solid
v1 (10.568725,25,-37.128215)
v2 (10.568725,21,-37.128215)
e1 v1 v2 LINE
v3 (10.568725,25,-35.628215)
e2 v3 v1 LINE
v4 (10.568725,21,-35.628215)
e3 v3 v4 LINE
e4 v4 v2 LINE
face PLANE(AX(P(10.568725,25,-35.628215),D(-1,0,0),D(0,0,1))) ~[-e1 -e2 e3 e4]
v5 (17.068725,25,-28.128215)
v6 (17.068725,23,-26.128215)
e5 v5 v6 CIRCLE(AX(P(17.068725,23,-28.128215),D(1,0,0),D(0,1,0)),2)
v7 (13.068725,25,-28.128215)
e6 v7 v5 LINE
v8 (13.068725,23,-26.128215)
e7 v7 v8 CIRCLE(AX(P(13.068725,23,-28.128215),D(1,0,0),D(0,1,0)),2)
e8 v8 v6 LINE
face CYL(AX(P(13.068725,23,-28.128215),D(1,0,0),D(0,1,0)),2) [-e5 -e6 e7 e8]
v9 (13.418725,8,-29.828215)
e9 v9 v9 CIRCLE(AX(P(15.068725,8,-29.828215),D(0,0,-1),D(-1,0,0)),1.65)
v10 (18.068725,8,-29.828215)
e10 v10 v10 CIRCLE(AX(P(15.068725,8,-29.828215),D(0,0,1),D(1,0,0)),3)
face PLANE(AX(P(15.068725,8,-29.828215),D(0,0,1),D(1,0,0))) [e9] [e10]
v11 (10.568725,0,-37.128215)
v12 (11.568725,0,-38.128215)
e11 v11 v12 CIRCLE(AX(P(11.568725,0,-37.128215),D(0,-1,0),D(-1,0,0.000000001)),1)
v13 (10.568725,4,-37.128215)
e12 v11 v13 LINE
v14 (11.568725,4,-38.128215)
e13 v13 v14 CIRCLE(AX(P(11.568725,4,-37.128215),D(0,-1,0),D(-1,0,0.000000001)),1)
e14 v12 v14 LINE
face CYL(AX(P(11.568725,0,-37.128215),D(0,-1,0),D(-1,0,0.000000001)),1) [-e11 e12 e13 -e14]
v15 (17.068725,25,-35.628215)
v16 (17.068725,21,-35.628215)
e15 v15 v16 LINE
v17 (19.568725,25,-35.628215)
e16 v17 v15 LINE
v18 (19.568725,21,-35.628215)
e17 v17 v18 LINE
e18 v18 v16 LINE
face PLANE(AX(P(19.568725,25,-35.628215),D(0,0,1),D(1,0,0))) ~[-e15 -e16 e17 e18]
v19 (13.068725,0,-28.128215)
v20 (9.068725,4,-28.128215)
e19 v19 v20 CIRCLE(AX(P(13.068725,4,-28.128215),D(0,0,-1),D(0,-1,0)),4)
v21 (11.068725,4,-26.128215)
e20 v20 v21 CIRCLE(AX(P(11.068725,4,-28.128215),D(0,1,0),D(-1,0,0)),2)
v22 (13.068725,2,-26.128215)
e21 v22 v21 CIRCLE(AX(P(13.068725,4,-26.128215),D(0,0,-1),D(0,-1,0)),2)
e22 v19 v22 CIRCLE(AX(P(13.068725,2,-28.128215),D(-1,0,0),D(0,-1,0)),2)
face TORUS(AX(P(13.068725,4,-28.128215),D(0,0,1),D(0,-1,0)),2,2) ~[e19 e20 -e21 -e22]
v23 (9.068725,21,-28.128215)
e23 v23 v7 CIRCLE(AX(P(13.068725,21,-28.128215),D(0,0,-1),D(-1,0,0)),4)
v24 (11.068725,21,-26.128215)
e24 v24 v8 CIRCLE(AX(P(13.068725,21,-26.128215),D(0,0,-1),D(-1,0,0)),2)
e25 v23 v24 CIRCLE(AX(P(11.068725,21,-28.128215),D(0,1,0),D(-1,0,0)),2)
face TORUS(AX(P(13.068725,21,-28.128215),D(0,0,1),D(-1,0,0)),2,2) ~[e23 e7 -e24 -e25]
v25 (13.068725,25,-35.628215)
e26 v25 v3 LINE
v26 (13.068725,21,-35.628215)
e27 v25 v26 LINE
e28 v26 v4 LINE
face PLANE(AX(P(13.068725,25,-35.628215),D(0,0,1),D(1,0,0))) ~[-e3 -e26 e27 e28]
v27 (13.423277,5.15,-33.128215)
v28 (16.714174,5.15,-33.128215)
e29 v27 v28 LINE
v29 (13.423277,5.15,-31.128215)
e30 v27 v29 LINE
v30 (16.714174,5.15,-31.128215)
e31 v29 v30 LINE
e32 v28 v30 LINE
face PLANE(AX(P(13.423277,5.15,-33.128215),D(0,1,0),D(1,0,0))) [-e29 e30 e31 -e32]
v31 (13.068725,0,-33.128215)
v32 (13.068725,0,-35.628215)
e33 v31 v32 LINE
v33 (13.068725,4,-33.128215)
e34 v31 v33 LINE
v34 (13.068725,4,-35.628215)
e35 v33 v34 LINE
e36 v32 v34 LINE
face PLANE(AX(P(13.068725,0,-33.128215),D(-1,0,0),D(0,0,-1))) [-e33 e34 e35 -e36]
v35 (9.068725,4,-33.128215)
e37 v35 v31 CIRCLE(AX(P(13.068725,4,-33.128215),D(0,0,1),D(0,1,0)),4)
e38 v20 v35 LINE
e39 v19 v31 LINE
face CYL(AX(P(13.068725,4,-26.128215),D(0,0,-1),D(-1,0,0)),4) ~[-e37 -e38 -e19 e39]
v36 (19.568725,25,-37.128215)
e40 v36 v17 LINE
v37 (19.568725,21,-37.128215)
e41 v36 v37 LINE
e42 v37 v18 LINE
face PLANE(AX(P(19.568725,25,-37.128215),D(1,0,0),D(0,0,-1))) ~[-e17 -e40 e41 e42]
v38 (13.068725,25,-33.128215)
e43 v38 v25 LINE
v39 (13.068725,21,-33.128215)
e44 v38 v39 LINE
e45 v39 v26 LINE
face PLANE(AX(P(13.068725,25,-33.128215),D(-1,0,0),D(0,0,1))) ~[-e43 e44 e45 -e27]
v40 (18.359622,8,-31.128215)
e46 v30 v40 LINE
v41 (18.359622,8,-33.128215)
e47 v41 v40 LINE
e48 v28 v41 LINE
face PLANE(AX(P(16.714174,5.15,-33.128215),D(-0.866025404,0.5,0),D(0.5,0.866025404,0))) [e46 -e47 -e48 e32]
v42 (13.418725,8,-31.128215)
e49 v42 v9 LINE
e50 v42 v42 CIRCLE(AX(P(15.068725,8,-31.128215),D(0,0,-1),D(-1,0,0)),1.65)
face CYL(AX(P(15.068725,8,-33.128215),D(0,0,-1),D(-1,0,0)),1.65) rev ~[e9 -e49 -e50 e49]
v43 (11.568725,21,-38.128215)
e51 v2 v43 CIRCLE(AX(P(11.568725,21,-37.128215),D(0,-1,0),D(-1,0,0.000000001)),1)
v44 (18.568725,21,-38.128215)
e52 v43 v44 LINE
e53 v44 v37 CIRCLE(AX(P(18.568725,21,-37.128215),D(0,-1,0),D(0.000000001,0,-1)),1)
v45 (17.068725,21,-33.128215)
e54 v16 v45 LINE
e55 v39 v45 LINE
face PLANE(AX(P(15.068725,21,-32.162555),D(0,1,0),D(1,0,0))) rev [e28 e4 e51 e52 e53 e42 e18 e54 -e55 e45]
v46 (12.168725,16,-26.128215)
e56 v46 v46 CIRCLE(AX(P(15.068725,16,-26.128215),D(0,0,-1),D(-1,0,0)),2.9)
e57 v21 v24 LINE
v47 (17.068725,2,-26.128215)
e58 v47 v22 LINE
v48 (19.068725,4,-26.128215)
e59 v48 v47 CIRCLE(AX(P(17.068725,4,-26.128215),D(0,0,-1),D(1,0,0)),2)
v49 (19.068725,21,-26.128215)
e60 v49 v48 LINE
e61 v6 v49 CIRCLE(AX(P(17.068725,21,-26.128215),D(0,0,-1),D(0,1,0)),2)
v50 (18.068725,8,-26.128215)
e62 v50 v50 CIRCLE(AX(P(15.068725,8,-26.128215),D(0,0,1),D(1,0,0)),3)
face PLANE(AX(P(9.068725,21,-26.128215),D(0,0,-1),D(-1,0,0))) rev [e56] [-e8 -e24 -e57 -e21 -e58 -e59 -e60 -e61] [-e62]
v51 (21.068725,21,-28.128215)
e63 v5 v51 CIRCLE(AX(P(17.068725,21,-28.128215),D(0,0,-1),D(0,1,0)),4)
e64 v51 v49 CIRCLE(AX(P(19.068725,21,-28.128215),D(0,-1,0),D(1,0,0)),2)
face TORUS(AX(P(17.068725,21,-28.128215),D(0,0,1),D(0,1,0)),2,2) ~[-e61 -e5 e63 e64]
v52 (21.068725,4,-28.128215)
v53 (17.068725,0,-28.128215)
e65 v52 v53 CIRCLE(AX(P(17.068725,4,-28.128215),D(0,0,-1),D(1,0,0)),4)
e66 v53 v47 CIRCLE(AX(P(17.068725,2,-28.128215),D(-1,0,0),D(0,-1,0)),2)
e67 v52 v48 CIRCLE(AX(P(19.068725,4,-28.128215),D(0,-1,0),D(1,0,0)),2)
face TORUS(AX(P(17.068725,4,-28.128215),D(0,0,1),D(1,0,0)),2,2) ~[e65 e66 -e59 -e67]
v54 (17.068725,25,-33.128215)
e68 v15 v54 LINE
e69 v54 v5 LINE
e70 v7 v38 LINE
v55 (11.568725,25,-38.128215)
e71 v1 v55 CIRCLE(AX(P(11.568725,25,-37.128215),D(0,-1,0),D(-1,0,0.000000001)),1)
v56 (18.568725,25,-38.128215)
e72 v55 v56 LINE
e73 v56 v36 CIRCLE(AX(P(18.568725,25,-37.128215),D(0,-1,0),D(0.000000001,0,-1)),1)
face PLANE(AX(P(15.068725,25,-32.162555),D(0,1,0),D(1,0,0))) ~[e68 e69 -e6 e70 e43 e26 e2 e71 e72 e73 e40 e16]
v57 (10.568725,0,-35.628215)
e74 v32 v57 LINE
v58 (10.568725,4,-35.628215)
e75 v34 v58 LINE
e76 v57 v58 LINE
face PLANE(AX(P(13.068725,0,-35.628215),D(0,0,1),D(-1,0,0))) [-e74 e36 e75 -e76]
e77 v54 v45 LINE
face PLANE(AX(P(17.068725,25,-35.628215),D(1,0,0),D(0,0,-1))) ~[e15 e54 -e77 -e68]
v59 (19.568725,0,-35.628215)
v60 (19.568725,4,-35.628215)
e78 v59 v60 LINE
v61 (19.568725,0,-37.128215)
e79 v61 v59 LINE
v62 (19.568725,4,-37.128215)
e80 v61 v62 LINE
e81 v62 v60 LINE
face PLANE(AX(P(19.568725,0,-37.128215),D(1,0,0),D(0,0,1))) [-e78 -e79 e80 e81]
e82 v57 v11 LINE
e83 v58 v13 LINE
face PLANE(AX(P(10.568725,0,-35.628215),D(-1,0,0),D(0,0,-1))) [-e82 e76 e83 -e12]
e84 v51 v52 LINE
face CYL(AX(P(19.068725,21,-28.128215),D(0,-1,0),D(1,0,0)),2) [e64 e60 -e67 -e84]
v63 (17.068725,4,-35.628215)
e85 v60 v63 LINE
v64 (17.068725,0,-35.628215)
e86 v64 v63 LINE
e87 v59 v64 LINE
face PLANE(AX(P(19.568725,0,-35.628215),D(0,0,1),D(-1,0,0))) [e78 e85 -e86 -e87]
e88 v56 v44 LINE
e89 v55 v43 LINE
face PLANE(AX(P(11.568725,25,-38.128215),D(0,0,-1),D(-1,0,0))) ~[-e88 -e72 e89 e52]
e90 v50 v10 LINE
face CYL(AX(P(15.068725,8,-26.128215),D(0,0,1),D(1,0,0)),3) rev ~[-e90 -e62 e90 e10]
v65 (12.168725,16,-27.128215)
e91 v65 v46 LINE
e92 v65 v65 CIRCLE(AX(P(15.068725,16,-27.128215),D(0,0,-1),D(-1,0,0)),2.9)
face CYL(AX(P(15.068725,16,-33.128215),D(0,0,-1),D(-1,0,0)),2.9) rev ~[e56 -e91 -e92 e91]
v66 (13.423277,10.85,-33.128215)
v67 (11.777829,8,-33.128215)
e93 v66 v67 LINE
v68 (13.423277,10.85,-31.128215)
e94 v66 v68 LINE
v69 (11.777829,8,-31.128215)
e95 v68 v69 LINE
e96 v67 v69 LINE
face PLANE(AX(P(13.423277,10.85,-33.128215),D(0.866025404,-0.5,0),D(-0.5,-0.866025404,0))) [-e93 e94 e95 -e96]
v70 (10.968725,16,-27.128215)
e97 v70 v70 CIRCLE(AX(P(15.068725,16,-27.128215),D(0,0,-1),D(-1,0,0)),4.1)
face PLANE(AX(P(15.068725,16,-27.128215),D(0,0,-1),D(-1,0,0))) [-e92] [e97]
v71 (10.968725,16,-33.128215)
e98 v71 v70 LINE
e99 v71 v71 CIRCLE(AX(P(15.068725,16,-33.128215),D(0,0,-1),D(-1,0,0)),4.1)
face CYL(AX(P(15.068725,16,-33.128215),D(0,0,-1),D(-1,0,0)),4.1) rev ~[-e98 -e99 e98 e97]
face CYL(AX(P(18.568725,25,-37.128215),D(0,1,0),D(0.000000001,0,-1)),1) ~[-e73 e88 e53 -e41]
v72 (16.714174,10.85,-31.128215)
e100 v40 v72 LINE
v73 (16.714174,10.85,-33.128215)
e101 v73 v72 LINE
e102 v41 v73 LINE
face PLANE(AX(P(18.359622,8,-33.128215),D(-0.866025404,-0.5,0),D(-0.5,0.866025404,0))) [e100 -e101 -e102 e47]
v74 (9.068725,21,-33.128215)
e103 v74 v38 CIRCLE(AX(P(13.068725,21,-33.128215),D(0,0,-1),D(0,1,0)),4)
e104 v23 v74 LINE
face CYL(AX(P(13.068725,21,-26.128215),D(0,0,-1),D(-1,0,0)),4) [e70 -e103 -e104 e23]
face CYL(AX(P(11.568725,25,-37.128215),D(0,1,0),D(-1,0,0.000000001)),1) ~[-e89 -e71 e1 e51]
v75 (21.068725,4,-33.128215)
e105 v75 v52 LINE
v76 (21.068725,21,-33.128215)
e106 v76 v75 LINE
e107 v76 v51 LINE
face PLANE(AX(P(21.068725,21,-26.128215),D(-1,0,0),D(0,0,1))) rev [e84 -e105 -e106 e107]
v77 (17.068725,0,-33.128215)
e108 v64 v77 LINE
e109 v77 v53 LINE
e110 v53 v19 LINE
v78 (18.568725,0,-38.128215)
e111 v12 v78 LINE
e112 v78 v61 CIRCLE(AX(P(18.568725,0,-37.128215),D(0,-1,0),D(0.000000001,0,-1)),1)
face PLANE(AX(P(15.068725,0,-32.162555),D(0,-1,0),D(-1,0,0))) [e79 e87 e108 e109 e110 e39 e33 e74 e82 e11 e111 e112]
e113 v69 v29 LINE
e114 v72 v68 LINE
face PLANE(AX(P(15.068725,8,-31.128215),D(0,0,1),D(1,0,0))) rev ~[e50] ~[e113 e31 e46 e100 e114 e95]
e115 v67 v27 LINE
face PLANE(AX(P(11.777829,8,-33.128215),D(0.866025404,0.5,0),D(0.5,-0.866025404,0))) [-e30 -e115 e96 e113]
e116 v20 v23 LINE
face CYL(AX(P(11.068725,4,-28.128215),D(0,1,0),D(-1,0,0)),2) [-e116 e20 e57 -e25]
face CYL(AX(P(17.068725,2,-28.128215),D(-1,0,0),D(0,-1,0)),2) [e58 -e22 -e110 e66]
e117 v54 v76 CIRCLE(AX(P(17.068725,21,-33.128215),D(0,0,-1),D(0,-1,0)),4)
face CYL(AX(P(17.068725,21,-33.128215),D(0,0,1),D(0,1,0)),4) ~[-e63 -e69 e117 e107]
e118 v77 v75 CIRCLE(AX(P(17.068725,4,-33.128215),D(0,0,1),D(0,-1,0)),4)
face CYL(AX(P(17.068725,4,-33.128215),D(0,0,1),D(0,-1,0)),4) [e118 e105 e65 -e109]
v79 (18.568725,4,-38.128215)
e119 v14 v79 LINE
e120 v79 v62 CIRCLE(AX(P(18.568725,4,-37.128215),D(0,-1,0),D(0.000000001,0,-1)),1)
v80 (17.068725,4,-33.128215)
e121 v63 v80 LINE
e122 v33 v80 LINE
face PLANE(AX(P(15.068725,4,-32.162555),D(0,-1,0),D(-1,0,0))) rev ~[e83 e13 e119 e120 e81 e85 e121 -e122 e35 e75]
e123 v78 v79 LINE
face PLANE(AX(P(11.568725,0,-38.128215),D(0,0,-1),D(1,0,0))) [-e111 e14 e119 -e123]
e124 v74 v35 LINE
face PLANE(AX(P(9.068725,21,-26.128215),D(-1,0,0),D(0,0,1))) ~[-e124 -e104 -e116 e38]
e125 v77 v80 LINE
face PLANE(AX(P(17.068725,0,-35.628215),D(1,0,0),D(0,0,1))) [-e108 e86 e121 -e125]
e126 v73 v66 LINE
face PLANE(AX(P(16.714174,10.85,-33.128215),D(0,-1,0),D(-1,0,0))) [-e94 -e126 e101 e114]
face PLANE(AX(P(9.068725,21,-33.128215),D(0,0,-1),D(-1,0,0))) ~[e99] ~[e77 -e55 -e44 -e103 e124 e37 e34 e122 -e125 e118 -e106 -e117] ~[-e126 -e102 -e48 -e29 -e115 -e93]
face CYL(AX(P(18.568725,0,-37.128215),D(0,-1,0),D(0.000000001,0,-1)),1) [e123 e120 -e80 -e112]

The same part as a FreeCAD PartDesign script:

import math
import FreeCAD as App
import Part
import Sketcher

V = App.Vector
Q = App.Units.Quantity


def edges_at(feature, points):
    """Names of the edges that pass closest to the given points."""
    edges = feature.Shape.Edges
    near = lambda p: min(range(len(edges)), key=lambda i: edges[i].distToShape(Part.Vertex(*p))[0])
    return sorted({f"Edge{near(p) + 1}" for p in points})

doc = App.newDocument("Part")
body = doc.addObject("PartDesign::Body", "Body")

# Sketch on XZ plane
sketch1 = body.newObject("Sketcher::SketchObject", "Sketch")
sketch1.AttachmentSupport = (doc.getObject("XZ_Plane"), [""])
sketch1.MapMode = "FlatFace"
sketch1.addGeometry(Part.LineSegment(V(18.6, -38.1, 0), V(11.6, -38.1, 0)), False)
sketch1.addGeometry(Part.ArcOfCircle(Part.Circle(V(11.6, -37.1, 0), V(0, 0, 1), 1), math.radians(180), math.radians(270)), False)
sketch1.addGeometry(Part.LineSegment(V(10.6, -37.1, 0), V(10.6, -35.6, 0)), False)
sketch1.addGeometry(Part.LineSegment(V(10.6, -35.6, 0), V(13.1, -35.6, 0)), False)
sketch1.addGeometry(Part.LineSegment(V(13.1, -35.6, 0), V(13.1, -33.1, 0)), False)
sketch1.addGeometry(Part.LineSegment(V(13.1, -33.1, 0), V(9.1, -33.1, 0)), False)
sketch1.addGeometry(Part.LineSegment(V(9.1, -33.1, 0), V(9.1, -26.1, 0)), False)
sketch1.addGeometry(Part.LineSegment(V(9.1, -26.1, 0), V(21.1, -26.1, 0)), False)
sketch1.addGeometry(Part.LineSegment(V(21.1, -26.1, 0), V(21.1, -33.1, 0)), False)
sketch1.addGeometry(Part.LineSegment(V(21.1, -33.1, 0), V(17.1, -33.1, 0)), False)
sketch1.addGeometry(Part.LineSegment(V(17.1, -33.1, 0), V(17.1, -35.6, 0)), False)
sketch1.addGeometry(Part.LineSegment(V(17.1, -35.6, 0), V(19.6, -35.6, 0)), False)
sketch1.addGeometry(Part.LineSegment(V(19.6, -35.6, 0), V(19.6, -37.1, 0)), False)
sketch1.addGeometry(Part.ArcOfCircle(Part.Circle(V(18.6, -37.1, 0), V(0, 0, 1), 1), math.radians(-90), math.radians(0)), False)
sketch1.addConstraint(Sketcher.Constraint("Tangent", 0, 2, 1, 2))
sketch1.addConstraint(Sketcher.Constraint("Tangent", 1, 1, 2, 1))
sketch1.addConstraint(Sketcher.Constraint("Coincident", 2, 2, 3, 1))
sketch1.addConstraint(Sketcher.Constraint("Coincident", 3, 2, 4, 1))
sketch1.addConstraint(Sketcher.Constraint("Coincident", 4, 2, 5, 1))
sketch1.addConstraint(Sketcher.Constraint("Coincident", 5, 2, 6, 1))
sketch1.addConstraint(Sketcher.Constraint("Coincident", 6, 2, 7, 1))
sketch1.addConstraint(Sketcher.Constraint("Coincident", 7, 2, 8, 1))
sketch1.addConstraint(Sketcher.Constraint("Coincident", 8, 2, 9, 1))
sketch1.addConstraint(Sketcher.Constraint("Coincident", 9, 2, 10, 1))
sketch1.addConstraint(Sketcher.Constraint("Coincident", 10, 2, 11, 1))
sketch1.addConstraint(Sketcher.Constraint("Coincident", 11, 2, 12, 1))
sketch1.addConstraint(Sketcher.Constraint("Tangent", 12, 2, 13, 2))
sketch1.addConstraint(Sketcher.Constraint("Tangent", 13, 1, 0, 1))
sketch1.addConstraint(Sketcher.Constraint("Horizontal", 0))
sketch1.addConstraint(Sketcher.Constraint("Vertical", 2))
sketch1.addConstraint(Sketcher.Constraint("Horizontal", 3))
sketch1.addConstraint(Sketcher.Constraint("Vertical", 4))
sketch1.addConstraint(Sketcher.Constraint("Horizontal", 5))
sketch1.addConstraint(Sketcher.Constraint("Vertical", 6))
sketch1.addConstraint(Sketcher.Constraint("Horizontal", 7))
sketch1.addConstraint(Sketcher.Constraint("Vertical", 8))
sketch1.addConstraint(Sketcher.Constraint("Horizontal", 9))
sketch1.addConstraint(Sketcher.Constraint("Vertical", 10))
sketch1.addConstraint(Sketcher.Constraint("Horizontal", 11))
sketch1.addConstraint(Sketcher.Constraint("Vertical", 12))
sketch1.addConstraint(Sketcher.Constraint("Equal", 1, 13))
sketch1.addConstraint(Sketcher.Constraint("Horizontal", 5, 2, 8, 2))
sketch1.addConstraint(Sketcher.Constraint("Horizontal", 3, 2, 10, 2))
sketch1.addConstraint(Sketcher.Constraint("Equal", 5, 9))
sketch1.addConstraint(Sketcher.Constraint("Equal", 3, 11))
sketch1.addConstraint(Sketcher.Constraint("Equal", 11, 4))
sketch1.addConstraint(Sketcher.Constraint("Equal", 0, 6))
sketch1.addConstraint(Sketcher.Constraint("Radius", 1, 1.0))
sketch1.addConstraint(Sketcher.Constraint("DistanceX", 0, 2, 0, 1, 7.0))
sketch1.addConstraint(Sketcher.Constraint("DistanceX", 5, 2, 5, 1, 4.0))
sketch1.addConstraint(Sketcher.Constraint("DistanceX", 7, 1, 7, 2, 12.0))
sketch1.addConstraint(Sketcher.Constraint("DistanceY", 2, 1, 2, 2, 1.5))
sketch1.addConstraint(Sketcher.Constraint("DistanceX", -1, 1, 1, 3, 11.568725))
sketch1.addConstraint(Sketcher.Constraint("DistanceY", 1, 3, -1, 1, 37.128215))
pad1 = body.newObject("PartDesign::Pad", "Pad")
pad1.Profile = sketch1
pad1.Length = 4
pad1.Reversed = True

# Sketch on XZ plane
sketch2 = body.newObject("Sketcher::SketchObject", "Sketch001")
sketch2.AttachmentSupport = (doc.getObject("XZ_Plane"), [""])
sketch2.MapMode = "FlatFace"
sketch2.AttachmentOffset = App.Placement(V(0, 0, -4), App.Rotation())
sketch2.addGeometry(Part.LineSegment(V(9, -33, 0), V(9, -26, 0)), False)
sketch2.addGeometry(Part.LineSegment(V(9, -26, 0), V(21, -26, 0)), False)
sketch2.addGeometry(Part.LineSegment(V(21, -26, 0), V(21, -33, 0)), False)
sketch2.addGeometry(Part.LineSegment(V(21, -33, 0), V(9, -33, 0)), False)
sketch2.addConstraint(Sketcher.Constraint("Coincident", 0, 2, 1, 1))
sketch2.addConstraint(Sketcher.Constraint("Coincident", 1, 2, 2, 1))
sketch2.addConstraint(Sketcher.Constraint("Coincident", 2, 2, 3, 1))
sketch2.addConstraint(Sketcher.Constraint("Coincident", 3, 2, 0, 1))
sketch2.addConstraint(Sketcher.Constraint("Vertical", 0))
sketch2.addConstraint(Sketcher.Constraint("Horizontal", 1))
sketch2.addConstraint(Sketcher.Constraint("Vertical", 2))
sketch2.addConstraint(Sketcher.Constraint("Horizontal", 3))
sketch2.addConstraint(Sketcher.Constraint("DistanceX", 1, 1, 1, 2, 12.0))
sketch2.addConstraint(Sketcher.Constraint("DistanceY", 0, 1, 0, 2, 7.0))
sketch2.addConstraint(Sketcher.Constraint("DistanceX", -1, 1, 0, 2, 9.068725))
sketch2.addConstraint(Sketcher.Constraint("DistanceY", 0, 2, -1, 1, 26.128215))
pad2 = body.newObject("PartDesign::Pad", "Pad001")
pad2.Profile = sketch2
pad2.Length = 8.5
pad2.Reversed = True
body2 = doc.addObject("PartDesign::Body", "Body001")
doc.recompute()

body2.BaseFeature = body
doc.recompute()

mirroring = doc.addObject("Part::Mirroring", "Mirroring")
mirroring.Source = body
mirroring.Base = V(0, 12.5, 0)
mirroring.Normal = V(0, 1, 0)
body3 = doc.addObject("PartDesign::Body", "Body002")
body3.BaseFeature = mirroring
boolean = body2.newObject("PartDesign::Boolean", "Boolean")
boolean.Type = "Fuse"
boolean.addObjects([body3])
doc.recompute()

# Sketch on XY plane
sketch3 = body2.newObject("Sketcher::SketchObject", "Sketch002")
sketch3.AttachmentSupport = (doc.getObject("XY_Plane001"), [""])
sketch3.MapMode = "FlatFace"
sketch3.AttachmentOffset = App.Placement(V(0, 0, -33.128215), App.Rotation())
sketch3.addGeometry(Part.Circle(V(15.1, 8, 0), V(0, 0, 1), 1.6), False)
sketch3.addConstraint(Sketcher.Constraint("Diameter", 0, 3.3))
sketch3.addConstraint(Sketcher.Constraint("DistanceY", -1, 1, 0, 3, 8.0))
sketch3.addConstraint(Sketcher.Constraint("DistanceX", -1, 1, 0, 3, 15.068725))
pocket1 = body2.newObject("PartDesign::Pocket", "Pocket")
pocket1.Profile = sketch3
pocket1.Type = "UpToFirst"
pocket1.Reversed = True

# Sketch on XY plane
sketch4 = body2.newObject("Sketcher::SketchObject", "Sketch003")
sketch4.AttachmentSupport = (doc.getObject("XY_Plane001"), [""])
sketch4.MapMode = "FlatFace"
sketch4.AttachmentOffset = App.Placement(V(0, 0, -33.128215), App.Rotation())
sketch4.addGeometry(Part.Circle(V(15.1, 16, 0), V(0, 0, 1), 2.9), False)
sketch4.addConstraint(Sketcher.Constraint("Diameter", 0, 5.8))
sketch4.addConstraint(Sketcher.Constraint("DistanceY", -1, 1, 0, 3, 16.0))
sketch4.addConstraint(Sketcher.Constraint("DistanceX", -1, 1, 0, 3, 15.068725))
pocket2 = body2.newObject("PartDesign::Pocket", "Pocket001")
pocket2.Profile = sketch4
pocket2.Type = "UpToFirst"
pocket2.Reversed = True

# Sketch on XY plane
sketch5 = body2.newObject("Sketcher::SketchObject", "Sketch004")
sketch5.AttachmentSupport = (doc.getObject("XY_Plane001"), [""])
sketch5.MapMode = "FlatFace"
sketch5.AttachmentOffset = App.Placement(V(0, 0, -33.128215), App.Rotation())
sketch5.addGeometry(Part.Circle(V(15.1, 16, 0), V(0, 0, 1), 4.1), False)
sketch5.addConstraint(Sketcher.Constraint("Diameter", 0, 8.2))
sketch5.addConstraint(Sketcher.Constraint("DistanceY", -1, 1, 0, 3, 16.0))
sketch5.addConstraint(Sketcher.Constraint("DistanceX", -1, 1, 0, 3, 15.068725))
pocket3 = body2.newObject("PartDesign::Pocket", "Pocket002")
pocket3.Profile = sketch5
pocket3.Length = 6
pocket3.Reversed = True
doc.recompute()

fillet = body2.newObject("PartDesign::Fillet", "Fillet")
fillet.Base = (pocket3, edges_at(pocket3, [
    (9.069, 0, -29.628),
    (9.069, 25, -29.628),
    (21.069, 0, -29.628),
    (21.069, 25, -29.628),
]))
fillet.Radius = 4
doc.recompute()

fillet2 = body2.newObject("PartDesign::Fillet", "Fillet001")
fillet2.Base = (fillet, edges_at(fillet, [
    (9.069, 12.5, -26.128),
    (15.069, 0, -26.128),
    (21.069, 12.5, -26.128),
    (15.069, 25, -26.128),
    (19.897, 23.828, -26.128),
    (19.897, 1.172, -26.128),
    (10.24, 23.828, -26.128),
    (10.24, 1.172, -26.128),
]))
fillet2.Radius = 2

# Sketch on XY plane
sketch6 = body2.newObject("Sketcher::SketchObject", "Sketch005")
sketch6.AttachmentSupport = (doc.getObject("XY_Plane001"), [""])
sketch6.MapMode = "FlatFace"
sketch6.AttachmentOffset = App.Placement(V(0, 0, -26.128215), App.Rotation())
sketch6.addGeometry(Part.Circle(V(15.1, 8, 0), V(0, 0, 1), 3), False)
sketch6.addConstraint(Sketcher.Constraint("Diameter", 0, 6.0))
sketch6.addConstraint(Sketcher.Constraint("DistanceY", -1, 1, 0, 3, 8.0))
sketch6.addConstraint(Sketcher.Constraint("DistanceX", -1, 1, 0, 3, 15.068725))
pocket4 = body2.newObject("PartDesign::Pocket", "Pocket003")
pocket4.Profile = sketch6
pocket4.Length = 3.7

# Sketch on XY plane
sketch7 = body2.newObject("Sketcher::SketchObject", "Sketch006")
sketch7.AttachmentSupport = (doc.getObject("XY_Plane001"), [""])
sketch7.MapMode = "FlatFace"
sketch7.AttachmentOffset = App.Placement(V(0, 0, -33.128215), App.Rotation())
sketch7.addGeometry(Part.LineSegment(V(13.4, 10.8, 0), V(16.7, 10.8, 0)), False)
sketch7.addGeometry(Part.LineSegment(V(16.7, 10.8, 0), V(18.4, 8, 0)), False)
sketch7.addGeometry(Part.LineSegment(V(18.4, 8, 0), V(16.7, 5.2, 0)), False)
sketch7.addGeometry(Part.LineSegment(V(16.7, 5.2, 0), V(13.4, 5.2, 0)), False)
sketch7.addGeometry(Part.LineSegment(V(13.4, 5.2, 0), V(11.8, 8, 0)), False)
sketch7.addGeometry(Part.LineSegment(V(11.8, 8, 0), V(13.4, 10.8, 0)), False)
sketch7.addConstraint(Sketcher.Constraint("Coincident", 0, 2, 1, 1))
sketch7.addConstraint(Sketcher.Constraint("Coincident", 1, 2, 2, 1))
sketch7.addConstraint(Sketcher.Constraint("Coincident", 2, 2, 3, 1))
sketch7.addConstraint(Sketcher.Constraint("Coincident", 3, 2, 4, 1))
sketch7.addConstraint(Sketcher.Constraint("Coincident", 4, 2, 5, 1))
sketch7.addConstraint(Sketcher.Constraint("Coincident", 5, 2, 0, 1))
sketch7.addConstraint(Sketcher.Constraint("Horizontal", 0))
sketch7.addConstraint(Sketcher.Constraint("Horizontal", 3))
sketch7.addConstraint(Sketcher.Constraint("Parallel", 1, 4))
sketch7.addConstraint(Sketcher.Constraint("Parallel", 2, 5))
sketch7.addConstraint(Sketcher.Constraint("Horizontal", 1, 2, 4, 2))
sketch7.addConstraint(Sketcher.Constraint("Vertical", 0, 2, 2, 2))
sketch7.addConstraint(Sketcher.Constraint("Vertical", 3, 2, 5, 2))
sketch7.addConstraint(Sketcher.Constraint("Angle", 1, Q("-60 deg")))
sketch7.addConstraint(Sketcher.Constraint("DistanceY", -1, 1, 1, 2, 8.0))
sketch7.addConstraint(Sketcher.Constraint("DistanceY", 2, 2, 0, 2, 5.7))
sketch7.addConstraint(Sketcher.Constraint("DistanceX", 0, 1, 0, 2, 3.290897))
sketch7.addConstraint(Sketcher.Constraint("DistanceX", -1, 1, 1, 2, 18.359622))
pocket5 = body2.newObject("PartDesign::Pocket", "Pocket004")
pocket5.Profile = sketch7
pocket5.Length = 2
pocket5.Reversed = True
mirroring.Visibility = False

doc.recompute()
